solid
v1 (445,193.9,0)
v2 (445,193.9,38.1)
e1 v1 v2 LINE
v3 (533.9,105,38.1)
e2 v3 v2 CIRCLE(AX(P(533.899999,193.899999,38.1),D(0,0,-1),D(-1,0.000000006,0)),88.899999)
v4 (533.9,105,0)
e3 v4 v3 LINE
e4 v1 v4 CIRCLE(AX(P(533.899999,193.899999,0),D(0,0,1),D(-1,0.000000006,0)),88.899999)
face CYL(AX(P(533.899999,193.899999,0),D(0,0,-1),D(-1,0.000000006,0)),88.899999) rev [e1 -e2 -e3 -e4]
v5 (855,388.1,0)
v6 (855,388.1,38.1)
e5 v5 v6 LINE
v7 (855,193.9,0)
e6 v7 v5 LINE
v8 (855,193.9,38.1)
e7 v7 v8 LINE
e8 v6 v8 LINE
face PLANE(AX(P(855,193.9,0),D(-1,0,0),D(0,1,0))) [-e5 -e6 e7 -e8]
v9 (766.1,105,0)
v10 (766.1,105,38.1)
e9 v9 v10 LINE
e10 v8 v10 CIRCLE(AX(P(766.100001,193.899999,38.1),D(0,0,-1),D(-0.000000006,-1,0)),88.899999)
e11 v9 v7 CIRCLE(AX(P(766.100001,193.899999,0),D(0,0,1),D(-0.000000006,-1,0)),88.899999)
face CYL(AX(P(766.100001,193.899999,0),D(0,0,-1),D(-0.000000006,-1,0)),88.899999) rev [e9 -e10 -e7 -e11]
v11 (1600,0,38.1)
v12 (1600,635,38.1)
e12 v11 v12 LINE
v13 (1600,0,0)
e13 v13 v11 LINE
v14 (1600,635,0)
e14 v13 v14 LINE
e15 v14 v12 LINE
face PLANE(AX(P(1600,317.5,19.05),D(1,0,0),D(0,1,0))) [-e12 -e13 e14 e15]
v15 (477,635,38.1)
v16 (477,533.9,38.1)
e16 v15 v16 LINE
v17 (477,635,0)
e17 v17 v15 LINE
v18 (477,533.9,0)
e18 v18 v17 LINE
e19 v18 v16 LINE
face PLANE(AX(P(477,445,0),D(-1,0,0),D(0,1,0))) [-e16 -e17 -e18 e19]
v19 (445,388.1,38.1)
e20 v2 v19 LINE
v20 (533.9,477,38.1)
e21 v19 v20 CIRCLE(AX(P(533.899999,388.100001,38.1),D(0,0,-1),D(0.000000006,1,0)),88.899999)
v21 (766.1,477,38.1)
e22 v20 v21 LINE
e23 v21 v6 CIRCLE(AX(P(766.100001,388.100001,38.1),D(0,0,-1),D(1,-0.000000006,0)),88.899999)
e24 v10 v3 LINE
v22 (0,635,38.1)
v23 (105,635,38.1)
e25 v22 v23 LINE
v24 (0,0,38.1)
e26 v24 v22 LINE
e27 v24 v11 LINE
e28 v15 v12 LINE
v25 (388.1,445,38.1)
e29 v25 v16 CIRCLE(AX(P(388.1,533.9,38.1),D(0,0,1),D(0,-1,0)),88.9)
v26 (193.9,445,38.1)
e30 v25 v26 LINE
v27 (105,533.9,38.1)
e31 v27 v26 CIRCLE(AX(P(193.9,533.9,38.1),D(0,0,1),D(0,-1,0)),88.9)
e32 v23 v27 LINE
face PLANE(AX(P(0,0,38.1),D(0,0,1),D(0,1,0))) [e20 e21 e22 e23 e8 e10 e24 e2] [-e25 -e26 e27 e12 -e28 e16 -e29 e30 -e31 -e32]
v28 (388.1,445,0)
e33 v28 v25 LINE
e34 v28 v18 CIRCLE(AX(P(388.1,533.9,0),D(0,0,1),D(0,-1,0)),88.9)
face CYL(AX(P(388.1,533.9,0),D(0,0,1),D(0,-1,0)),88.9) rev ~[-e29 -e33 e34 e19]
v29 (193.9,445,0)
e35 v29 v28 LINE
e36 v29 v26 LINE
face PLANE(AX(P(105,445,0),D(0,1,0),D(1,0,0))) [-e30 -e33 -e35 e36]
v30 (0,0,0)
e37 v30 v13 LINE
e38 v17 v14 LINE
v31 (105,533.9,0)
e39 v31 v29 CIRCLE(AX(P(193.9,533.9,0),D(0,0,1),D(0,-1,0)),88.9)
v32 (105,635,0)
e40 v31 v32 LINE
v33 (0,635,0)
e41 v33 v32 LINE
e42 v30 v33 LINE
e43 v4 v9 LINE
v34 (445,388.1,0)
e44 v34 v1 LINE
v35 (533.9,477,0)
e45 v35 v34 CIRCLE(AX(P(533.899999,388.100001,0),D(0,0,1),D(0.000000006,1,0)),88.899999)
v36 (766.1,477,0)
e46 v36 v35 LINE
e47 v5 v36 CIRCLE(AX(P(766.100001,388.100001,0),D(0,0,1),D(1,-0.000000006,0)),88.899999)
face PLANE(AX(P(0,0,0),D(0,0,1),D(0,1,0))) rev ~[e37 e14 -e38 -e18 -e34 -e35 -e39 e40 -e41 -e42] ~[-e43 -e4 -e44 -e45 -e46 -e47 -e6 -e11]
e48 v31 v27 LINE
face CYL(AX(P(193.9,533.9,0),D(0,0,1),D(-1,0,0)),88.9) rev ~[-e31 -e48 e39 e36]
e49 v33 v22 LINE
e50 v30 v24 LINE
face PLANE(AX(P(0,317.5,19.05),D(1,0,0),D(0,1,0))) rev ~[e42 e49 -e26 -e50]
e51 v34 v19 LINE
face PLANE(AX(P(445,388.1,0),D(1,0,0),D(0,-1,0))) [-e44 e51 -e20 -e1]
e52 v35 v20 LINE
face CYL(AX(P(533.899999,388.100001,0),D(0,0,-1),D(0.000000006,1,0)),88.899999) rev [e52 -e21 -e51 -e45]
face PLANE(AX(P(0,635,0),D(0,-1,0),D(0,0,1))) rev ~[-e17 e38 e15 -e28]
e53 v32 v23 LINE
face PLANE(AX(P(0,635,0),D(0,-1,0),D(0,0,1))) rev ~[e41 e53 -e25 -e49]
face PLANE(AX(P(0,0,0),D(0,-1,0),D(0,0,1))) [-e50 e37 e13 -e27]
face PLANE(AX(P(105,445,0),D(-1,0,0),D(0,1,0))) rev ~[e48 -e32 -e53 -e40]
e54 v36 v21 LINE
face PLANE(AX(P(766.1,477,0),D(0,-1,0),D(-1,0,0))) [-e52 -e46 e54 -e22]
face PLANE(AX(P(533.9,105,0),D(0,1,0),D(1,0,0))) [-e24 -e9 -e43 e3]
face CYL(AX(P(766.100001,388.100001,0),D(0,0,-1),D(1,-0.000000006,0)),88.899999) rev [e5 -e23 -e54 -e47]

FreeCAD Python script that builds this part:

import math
import FreeCAD as App
import Part
import Sketcher
Q = App.Units.Quantity


def edges_at(feature, points):
    """Names of the edges that pass closest to the given points."""
    edges = feature.Shape.Edges
    near = lambda p: min(range(len(edges)), key=lambda i: edges[i].distToShape(Part.Vertex(*p))[0])
    return sorted({f"Edge{near(p) + 1}" for p in points})


def add_polygon(sketch, points):
    """Adds a closed chain of lines whose ends are joined by coincident constraints."""
    first, n = sketch.GeometryCount, len(points)
    for a, b in zip(points, points[1:] + points[:1]):
        sketch.addGeometry(Part.LineSegment(App.Vector(*a, 0), App.Vector(*b, 0)), False)
    for i in range(n):
        sketch.addConstraint(Sketcher.Constraint("Coincident", first + i, 2, first + (i + 1) % n, 1))

doc = App.newDocument("Part")
params = doc.addObject("Spreadsheet::Sheet", "Params")
for row, (alias, value) in enumerate([
    ("sketch1_width", "635 mm"),
    ("sketch1_height", "38.1 mm"),
    ("pad1_length", "1600 mm"),
    ("sketch2_width", "372 mm"),
    ("sketch2_height", "190 mm"),
    ("fillet_radius", "88.9 mm"),
    ("sketch3_radius", "88.899999 mm"),
    ("sketch3_width", "232.2 mm"),
    ("sketch3_height", "194.2 mm"),
], start=1):
    params.set(f"A{row}", alias)
    params.set(f"B{row}", "=" + value)
    params.setAlias(f"B{row}", alias)

body = doc.addObject("PartDesign::Body", "Body")

# Sketch on YZ plane
sketch1 = body.newObject("Sketcher::SketchObject", "Sketch")
sketch1.AttachmentSupport = (doc.getObject("YZ_Plane"), [""])
sketch1.MapMode = "FlatFace"
add_polygon(sketch1, [(0, 38), (0, 0), (635, 0), (635, 38)])  # lines 0-3
sketch1.addConstraint([
    Sketcher.Constraint("Vertical", 0),
    Sketcher.Constraint("Horizontal", 1),
    Sketcher.Constraint("Vertical", 2),
    Sketcher.Constraint("Horizontal", 3),
    Sketcher.Constraint("Coincident", 0, 2, -1, 1),
    Sketcher.Constraint("DistanceX", 1, 1, 1, 2, Q("635 mm")),
    Sketcher.Constraint("DistanceY", 0, 2, 0, 1, Q("38.1 mm")),
])
sketch1.setExpression("Constraints[9]", "Params.sketch1_width")
sketch1.setExpression("Constraints[10]", "Params.sketch1_height")
pad1 = body.newObject("PartDesign::Pad", "Pad")
pad1.Profile = sketch1
pad1.setExpression("Length", "Params.pad1_length")

# Sketch on XY plane
sketch2 = body.newObject("Sketcher::SketchObject", "Sketch001")
sketch2.AttachmentSupport = (doc.getObject("XY_Plane"), [""])
sketch2.MapMode = "FlatFace"
add_polygon(sketch2, [(105, 635), (105, 445), (477, 445), (477, 635)])  # lines 0-3
sketch2.addConstraint([
    Sketcher.Constraint("Vertical", 0),
    Sketcher.Constraint("Horizontal", 1),
    Sketcher.Constraint("Vertical", 2),
    Sketcher.Constraint("Horizontal", 3),
    Sketcher.Constraint("DistanceX", 1, 1, 1, 2, Q("372 mm")),
    Sketcher.Constraint("DistanceY", 0, 2, 0, 1, Q("190 mm")),
    Sketcher.Constraint("DistanceX", -1, 1, 0, 2, Q("105 mm")),
    Sketcher.Constraint("DistanceY", -1, 1, 0, 2, Q("445 mm")),
])
sketch2.setExpression("Constraints[8]", "Params.sketch2_width")
sketch2.setExpression("Constraints[9]", "Params.sketch2_height")
pocket1 = body.newObject("PartDesign::Pocket", "Pocket")
pocket1.Profile = sketch2
pocket1.Type = "ThroughAll"
pocket1.Reversed = True
doc.recompute()

fillet = body.newObject("PartDesign::Fillet", "Fillet")
fillet.Base = (pocket1, edges_at(pocket1, [(477, 445, 19.05), (105, 445, 19.05)]))
fillet.setExpression("Radius", "Params.fillet_radius")

# Sketch on XY plane
sketch3 = body.newObject("Sketcher::SketchObject", "Sketch002")
sketch3.AttachmentSupport = (doc.getObject("XY_Plane"), [""])
sketch3.MapMode = "FlatFace"
sketch3.addGeometry([
    Part.LineSegment(App.Vector(534, 105, 0), App.Vector(766, 105, 0)),  # 0
    Part.ArcOfCircle(Part.Circle(App.Vector(766, 194, 0), App.Vector(0, 0, 1), 89), math.radians(-90), math.radians(0)),  # 1
    Part.LineSegment(App.Vector(855, 194, 0), App.Vector(855, 388, 0)),  # 2
    Part.ArcOfCircle(Part.Circle(App.Vector(766, 388, 0), App.Vector(0, 0, 1), 89), math.radians(0), math.radians(90)),  # 3
    Part.LineSegment(App.Vector(766, 477, 0), App.Vector(534, 477, 0)),  # 4
    Part.ArcOfCircle(Part.Circle(App.Vector(534, 388, 0), App.Vector(0, 0, 1), 89), math.radians(90), math.radians(180)),  # 5
    Part.LineSegment(App.Vector(445, 388, 0), App.Vector(445, 194, 0)),  # 6
    Part.ArcOfCircle(Part.Circle(App.Vector(534, 194, 0), App.Vector(0, 0, 1), 89), math.radians(180), math.radians(270)),  # 7
], False)
sketch3.addConstraint([
    Sketcher.Constraint("Tangent", 0, 2, 1, 1),
    Sketcher.Constraint("Tangent", 1, 2, 2, 1),
    Sketcher.Constraint("Tangent", 2, 2, 3, 1),
    Sketcher.Constraint("Tangent", 3, 2, 4, 1),
    Sketcher.Constraint("Tangent", 4, 2, 5, 1),
    Sketcher.Constraint("Tangent", 5, 2, 6, 1),
    Sketcher.Constraint("Tangent", 6, 2, 7, 1),
    Sketcher.Constraint("Tangent", 7, 2, 0, 1),
    Sketcher.Constraint("Horizontal", 0),
    Sketcher.Constraint("Vertical", 2),
    Sketcher.Constraint("Horizontal", 4),
    Sketcher.Constraint("Vertical", 6),
    Sketcher.Constraint("Equal", 1, 3),
    Sketcher.Constraint("Equal", 3, 5),
    Sketcher.Constraint("Equal", 5, 7),
    Sketcher.Constraint("Radius", 1, Q("88.899999 mm")),
    Sketcher.Constraint("DistanceX", 0, 1, 0, 2, Q("232.2 mm")),
    Sketcher.Constraint("DistanceY", 2, 1, 2, 2, Q("194.2 mm")),
    Sketcher.Constraint("DistanceY", -1, 1, 0, 2, Q("105 mm")),
    Sketcher.Constraint("DistanceX", -1, 1, 1, 2, Q("855 mm")),
])
sketch3.setExpression("Constraints[15]", "Params.sketch3_radius")
sketch3.setExpression("Constraints[16]", "Params.sketch3_width")
sketch3.setExpression("Constraints[17]", "Params.sketch3_height")
pocket2 = body.newObject("PartDesign::Pocket", "Pocket001")
pocket2.Profile = sketch3
pocket2.Type = "ThroughAll"
pocket2.Reversed = True

doc.recompute()
